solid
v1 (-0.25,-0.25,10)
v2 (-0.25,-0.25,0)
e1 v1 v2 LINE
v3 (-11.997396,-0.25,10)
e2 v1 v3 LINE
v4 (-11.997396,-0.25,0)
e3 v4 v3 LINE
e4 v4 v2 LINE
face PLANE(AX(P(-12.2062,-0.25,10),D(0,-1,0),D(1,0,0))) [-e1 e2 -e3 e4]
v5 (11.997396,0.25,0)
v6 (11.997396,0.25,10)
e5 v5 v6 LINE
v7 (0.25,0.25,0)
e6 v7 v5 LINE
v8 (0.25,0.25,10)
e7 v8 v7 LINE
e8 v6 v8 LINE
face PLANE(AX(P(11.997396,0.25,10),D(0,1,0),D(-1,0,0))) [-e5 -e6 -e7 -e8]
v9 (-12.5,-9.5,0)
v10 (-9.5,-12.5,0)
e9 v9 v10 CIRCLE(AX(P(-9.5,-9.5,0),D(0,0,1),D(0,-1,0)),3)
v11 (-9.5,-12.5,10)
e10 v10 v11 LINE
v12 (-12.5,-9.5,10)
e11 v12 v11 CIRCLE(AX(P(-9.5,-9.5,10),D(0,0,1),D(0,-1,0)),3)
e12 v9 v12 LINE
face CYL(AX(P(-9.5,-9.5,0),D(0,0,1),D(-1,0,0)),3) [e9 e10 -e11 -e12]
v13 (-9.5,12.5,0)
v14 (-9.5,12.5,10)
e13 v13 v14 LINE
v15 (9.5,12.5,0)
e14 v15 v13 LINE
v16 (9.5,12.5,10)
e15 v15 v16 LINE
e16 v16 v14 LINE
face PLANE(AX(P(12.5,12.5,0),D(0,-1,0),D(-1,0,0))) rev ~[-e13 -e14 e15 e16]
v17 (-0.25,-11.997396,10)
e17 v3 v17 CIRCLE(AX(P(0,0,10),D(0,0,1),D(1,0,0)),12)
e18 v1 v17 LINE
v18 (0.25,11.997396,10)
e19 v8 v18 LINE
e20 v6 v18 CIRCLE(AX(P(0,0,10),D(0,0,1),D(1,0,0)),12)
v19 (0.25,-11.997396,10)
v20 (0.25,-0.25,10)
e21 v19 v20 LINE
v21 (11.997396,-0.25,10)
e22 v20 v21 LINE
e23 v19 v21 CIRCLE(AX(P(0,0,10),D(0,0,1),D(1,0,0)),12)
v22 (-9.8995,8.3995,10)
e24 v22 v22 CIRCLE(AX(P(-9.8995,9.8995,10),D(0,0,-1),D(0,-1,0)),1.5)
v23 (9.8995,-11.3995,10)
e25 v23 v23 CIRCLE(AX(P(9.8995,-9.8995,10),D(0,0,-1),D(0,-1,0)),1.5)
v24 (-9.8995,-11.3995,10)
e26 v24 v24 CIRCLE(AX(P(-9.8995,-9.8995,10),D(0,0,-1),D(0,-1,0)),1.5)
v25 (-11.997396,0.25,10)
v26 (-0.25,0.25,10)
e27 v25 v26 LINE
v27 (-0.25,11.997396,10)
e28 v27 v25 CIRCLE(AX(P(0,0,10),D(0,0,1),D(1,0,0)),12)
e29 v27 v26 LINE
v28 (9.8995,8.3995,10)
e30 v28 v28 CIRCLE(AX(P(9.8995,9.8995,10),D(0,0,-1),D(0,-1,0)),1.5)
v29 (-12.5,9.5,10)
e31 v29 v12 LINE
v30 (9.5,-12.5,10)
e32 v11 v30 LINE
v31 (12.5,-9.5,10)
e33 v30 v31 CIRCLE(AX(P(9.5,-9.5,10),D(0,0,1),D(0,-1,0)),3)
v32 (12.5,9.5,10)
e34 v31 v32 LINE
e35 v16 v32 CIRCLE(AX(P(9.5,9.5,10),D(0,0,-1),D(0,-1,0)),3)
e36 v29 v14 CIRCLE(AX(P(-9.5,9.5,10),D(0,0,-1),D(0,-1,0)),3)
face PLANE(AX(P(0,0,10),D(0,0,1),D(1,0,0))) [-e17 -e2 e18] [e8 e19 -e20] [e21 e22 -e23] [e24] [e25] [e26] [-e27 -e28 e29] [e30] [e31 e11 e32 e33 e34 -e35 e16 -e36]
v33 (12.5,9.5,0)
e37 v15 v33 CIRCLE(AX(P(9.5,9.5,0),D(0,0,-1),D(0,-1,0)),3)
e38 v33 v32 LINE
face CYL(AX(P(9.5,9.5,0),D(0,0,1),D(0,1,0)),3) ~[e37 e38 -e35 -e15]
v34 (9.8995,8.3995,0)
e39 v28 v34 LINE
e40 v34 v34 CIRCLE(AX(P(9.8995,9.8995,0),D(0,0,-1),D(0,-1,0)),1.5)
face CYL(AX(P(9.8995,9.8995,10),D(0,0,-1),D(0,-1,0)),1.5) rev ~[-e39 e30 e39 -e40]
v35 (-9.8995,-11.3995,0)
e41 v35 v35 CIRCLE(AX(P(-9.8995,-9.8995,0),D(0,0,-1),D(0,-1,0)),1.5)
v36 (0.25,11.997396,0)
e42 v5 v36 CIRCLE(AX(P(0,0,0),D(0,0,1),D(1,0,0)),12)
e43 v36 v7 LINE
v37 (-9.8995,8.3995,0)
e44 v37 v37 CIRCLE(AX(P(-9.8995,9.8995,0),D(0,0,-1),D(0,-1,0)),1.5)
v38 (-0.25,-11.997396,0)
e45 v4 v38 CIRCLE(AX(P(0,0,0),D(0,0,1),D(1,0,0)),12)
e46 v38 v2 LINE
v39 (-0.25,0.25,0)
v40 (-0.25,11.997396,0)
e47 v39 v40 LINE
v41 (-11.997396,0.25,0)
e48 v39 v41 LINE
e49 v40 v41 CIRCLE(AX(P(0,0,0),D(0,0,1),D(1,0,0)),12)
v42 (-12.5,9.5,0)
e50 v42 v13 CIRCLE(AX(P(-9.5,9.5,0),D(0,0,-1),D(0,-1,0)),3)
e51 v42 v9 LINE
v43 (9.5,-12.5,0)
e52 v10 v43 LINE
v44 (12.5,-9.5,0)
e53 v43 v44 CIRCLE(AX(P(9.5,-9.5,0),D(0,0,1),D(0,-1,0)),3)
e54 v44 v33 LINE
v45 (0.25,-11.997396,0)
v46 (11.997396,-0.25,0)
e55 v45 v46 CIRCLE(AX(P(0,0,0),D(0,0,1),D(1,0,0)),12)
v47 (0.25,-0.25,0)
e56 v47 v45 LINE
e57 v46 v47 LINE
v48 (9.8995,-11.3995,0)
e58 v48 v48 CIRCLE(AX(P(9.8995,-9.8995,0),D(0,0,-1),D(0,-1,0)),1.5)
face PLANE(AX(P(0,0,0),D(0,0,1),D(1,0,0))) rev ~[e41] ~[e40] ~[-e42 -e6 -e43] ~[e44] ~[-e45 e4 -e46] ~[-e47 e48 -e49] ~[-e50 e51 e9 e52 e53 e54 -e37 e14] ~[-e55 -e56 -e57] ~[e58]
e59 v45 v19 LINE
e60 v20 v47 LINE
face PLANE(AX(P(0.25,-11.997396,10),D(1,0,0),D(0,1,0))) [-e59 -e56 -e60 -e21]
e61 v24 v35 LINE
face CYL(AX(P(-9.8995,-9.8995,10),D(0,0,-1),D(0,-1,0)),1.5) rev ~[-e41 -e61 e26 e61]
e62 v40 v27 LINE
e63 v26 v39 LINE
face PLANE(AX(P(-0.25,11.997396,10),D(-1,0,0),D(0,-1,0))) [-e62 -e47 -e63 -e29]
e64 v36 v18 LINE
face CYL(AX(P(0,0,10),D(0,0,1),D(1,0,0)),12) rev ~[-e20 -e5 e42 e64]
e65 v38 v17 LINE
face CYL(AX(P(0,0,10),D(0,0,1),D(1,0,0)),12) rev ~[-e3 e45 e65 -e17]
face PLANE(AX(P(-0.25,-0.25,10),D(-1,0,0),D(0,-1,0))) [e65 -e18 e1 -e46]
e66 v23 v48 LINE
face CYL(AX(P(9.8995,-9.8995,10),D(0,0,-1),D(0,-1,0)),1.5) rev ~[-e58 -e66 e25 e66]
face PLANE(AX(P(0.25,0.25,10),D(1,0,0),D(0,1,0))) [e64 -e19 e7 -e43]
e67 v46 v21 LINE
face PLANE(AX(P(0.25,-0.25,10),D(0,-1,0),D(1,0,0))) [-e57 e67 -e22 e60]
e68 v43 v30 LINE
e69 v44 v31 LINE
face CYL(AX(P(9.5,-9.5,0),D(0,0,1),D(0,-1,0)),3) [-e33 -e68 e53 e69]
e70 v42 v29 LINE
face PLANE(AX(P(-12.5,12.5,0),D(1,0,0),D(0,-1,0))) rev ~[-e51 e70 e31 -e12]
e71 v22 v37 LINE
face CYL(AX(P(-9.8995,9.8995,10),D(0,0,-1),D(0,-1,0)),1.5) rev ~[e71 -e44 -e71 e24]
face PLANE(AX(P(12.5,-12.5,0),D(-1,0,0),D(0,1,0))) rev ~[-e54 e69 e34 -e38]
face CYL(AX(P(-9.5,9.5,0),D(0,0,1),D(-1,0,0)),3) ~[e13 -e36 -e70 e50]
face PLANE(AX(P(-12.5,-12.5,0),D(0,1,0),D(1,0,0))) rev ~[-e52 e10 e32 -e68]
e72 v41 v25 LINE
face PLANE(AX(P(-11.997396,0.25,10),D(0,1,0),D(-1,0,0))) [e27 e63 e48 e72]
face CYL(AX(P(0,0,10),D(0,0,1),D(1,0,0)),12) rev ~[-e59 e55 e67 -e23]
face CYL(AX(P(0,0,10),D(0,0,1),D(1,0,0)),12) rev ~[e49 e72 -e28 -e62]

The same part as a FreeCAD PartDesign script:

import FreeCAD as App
import Part
import Sketcher


def edges_at(feature, points):
    """Names of the edges that pass closest to the given points."""
    edges = feature.Shape.Edges
    near = lambda p: min(range(len(edges)), key=lambda i: edges[i].distToShape(Part.Vertex(*p))[0])
    return sorted({f"Edge{near(p) + 1}" for p in points})


def add_polygon(sketch, points):
    """Adds a closed chain of lines whose ends are joined by coincident constraints."""
    first, n = sketch.GeometryCount, len(points)
    for a, b in zip(points, points[1:] + points[:1]):
        sketch.addGeometry(Part.LineSegment(App.Vector(*a, 0), App.Vector(*b, 0)), False)
    for i in range(n):
        sketch.addConstraint(Sketcher.Constraint("Coincident", first + i, 2, first + (i + 1) % n, 1))

doc = App.newDocument("Part")
body = doc.addObject("PartDesign::Body", "Body")

# Sketch on XY plane
sketch1 = body.newObject("Sketcher::SketchObject", "Sketch")
sketch1.AttachmentSupport = (doc.getObject("XY_Plane"), [""])
sketch1.MapMode = "FlatFace"
add_polygon(sketch1, [(-12, 12), (-12, -12), (12, -12), (12, 12)])  # lines 0-3
sketch1.addConstraint([
    Sketcher.Constraint("Vertical", 0),
    Sketcher.Constraint("Horizontal", 1),
    Sketcher.Constraint("Vertical", 2),
    Sketcher.Constraint("Horizontal", 3),
    Sketcher.Constraint("Symmetric", 0, 2, 2, 2, -1, 1),
    Sketcher.Constraint("Equal", 3, 0),
    Sketcher.Constraint("DistanceX", 1, 1, 1, 2, 25.0),
])
pad1 = body.newObject("PartDesign::Pad", "Pad")
pad1.Profile = sketch1
pad1.Length = 10

# Sketch on XY plane
sketch2 = body.newObject("Sketcher::SketchObject", "Sketch001")
sketch2.AttachmentSupport = (doc.getObject("XY_Plane"), [""])
sketch2.MapMode = "FlatFace"
sketch2.AttachmentOffset = App.Placement(App.Vector(0, 0, 10), App.Rotation())
sketch2.addGeometry([
    Part.Circle(App.Vector(-9.9, 9.9, 0), App.Vector(0, 0, 1), 1.5),
    Part.Circle(App.Vector(-9.9, -9.9, 0), App.Vector(0, 0, 1), 1.5),
    Part.Circle(App.Vector(9.9, -9.9, 0), App.Vector(0, 0, 1), 1.5),
    Part.Circle(App.Vector(9.9, 9.9, 0), App.Vector(0, 0, 1), 1.5),
], False)
sketch2.addConstraint([
    Sketcher.Constraint("Equal", 0, 1),
    Sketcher.Constraint("Equal", 1, 2),
    Sketcher.Constraint("Equal", 2, 3),
    Sketcher.Constraint("Symmetric", 0, 3, 2, 3, -1, 1),
    Sketcher.Constraint("Symmetric", 1, 3, 3, 3, -1, 1),
    Sketcher.Constraint("Symmetric", 1, 3, 2, 3, -2),
    Sketcher.Constraint("Diameter", 0, 3.0),
    Sketcher.Constraint("DistanceY", 1, 3, 0, 3, 19.799),
    Sketcher.Constraint("DistanceX", 1, 3, 2, 3, 19.799),
])
doc.recompute()
hole = body.newObject("PartDesign::Hole", "Hole")
hole.Profile = sketch2
hole.ThreadType = "None"
hole.Diameter = 3
hole.DepthType = "Dimension"
hole.Depth = 15.25
hole.DrillPoint = "Angled"
hole.DrillPointAngle = 118
doc.recompute()

fillet = body.newObject("PartDesign::Fillet", "Fillet")
fillet.Base = (hole, edges_at(hole, [
    (-12.5, 12.5, 5),
    (12.5, 12.5, 5),
    (12.5, -12.5, 5),
    (-12.5, -12.5, 5),
]))
fillet.Radius = 3

# Sketch on XY plane
sketch3 = body.newObject("Sketcher::SketchObject", "Sketch002")
sketch3.AttachmentSupport = (doc.getObject("XY_Plane"), [""])
sketch3.MapMode = "FlatFace"
sketch3.AttachmentOffset = App.Placement(App.Vector(0, 0, 10), App.Rotation())
sketch3.addGeometry(Part.Circle(App.Vector(0, 0, 0), App.Vector(0, 0, 1), 12), False)
sketch3.addConstraint([
    Sketcher.Constraint("Coincident", 0, 3, -1, 1),
    Sketcher.Constraint("Diameter", 0, 24.0),
])
pocket1 = body.newObject("PartDesign::Pocket", "Pocket")
pocket1.Profile = sketch3
pocket1.Length = 10

# Sketch on XY plane
sketch4 = body.newObject("Sketcher::SketchObject", "Sketch003")
sketch4.AttachmentSupport = (doc.getObject("XY_Plane"), [""])
sketch4.MapMode = "FlatFace"
sketch4.AttachmentOffset = App.Placement(App.Vector(0, 0, 10), App.Rotation())
add_polygon(sketch4, [(-12.2, 0.2), (-12.2, -0.2), (-0.2, -0.2), (-0.2, -12.2), (0.2, -12.2), (0.2, -0.2), (12.2, -0.2), (12.2, 0.2), (0.2, 0.2), (0.2, 12.2), (-0.2, 12.2), (-0.2, 0.2)])  # lines 0-11
sketch4.addConstraint([
    Sketcher.Constraint("Vertical", 0),
    Sketcher.Constraint("Horizontal", 1),
    Sketcher.Constraint("Vertical", 2),
    Sketcher.Constraint("Horizontal", 3),
    Sketcher.Constraint("Vertical", 4),
    Sketcher.Constraint("Horizontal", 5),
    Sketcher.Constraint("Vertical", 6),
    Sketcher.Constraint("Horizontal", 7),
    Sketcher.Constraint("Vertical", 8),
    Sketcher.Constraint("Horizontal", 9),
    Sketcher.Constraint("Vertical", 10),
    Sketcher.Constraint("Horizontal", 11),
    Sketcher.Constraint("Symmetric", 0, 2, 6, 2, -1, 1),
    Sketcher.Constraint("Symmetric", 2, 2, 8, 2, -1, 1),
    Sketcher.Constraint("Symmetric", 4, 2, 10, 2, -1, 1),
    Sketcher.Constraint("Symmetric", 1, 2, 4, 2, -2),
    Sketcher.Constraint("Equal", 9, 0),
    Sketcher.Constraint("Equal", 11, 2),
    Sketcher.Constraint("DistanceX", 3, 1, 3, 2, 0.5),
    Sketcher.Constraint("DistanceX", 1, 1, 1, 2, 11.9562),
])
pad2 = body.newObject("PartDesign::Pad", "Pad001")
pad2.Profile = sketch4
pad2.Length = 10
pad2.Reversed = True

doc.recompute()
